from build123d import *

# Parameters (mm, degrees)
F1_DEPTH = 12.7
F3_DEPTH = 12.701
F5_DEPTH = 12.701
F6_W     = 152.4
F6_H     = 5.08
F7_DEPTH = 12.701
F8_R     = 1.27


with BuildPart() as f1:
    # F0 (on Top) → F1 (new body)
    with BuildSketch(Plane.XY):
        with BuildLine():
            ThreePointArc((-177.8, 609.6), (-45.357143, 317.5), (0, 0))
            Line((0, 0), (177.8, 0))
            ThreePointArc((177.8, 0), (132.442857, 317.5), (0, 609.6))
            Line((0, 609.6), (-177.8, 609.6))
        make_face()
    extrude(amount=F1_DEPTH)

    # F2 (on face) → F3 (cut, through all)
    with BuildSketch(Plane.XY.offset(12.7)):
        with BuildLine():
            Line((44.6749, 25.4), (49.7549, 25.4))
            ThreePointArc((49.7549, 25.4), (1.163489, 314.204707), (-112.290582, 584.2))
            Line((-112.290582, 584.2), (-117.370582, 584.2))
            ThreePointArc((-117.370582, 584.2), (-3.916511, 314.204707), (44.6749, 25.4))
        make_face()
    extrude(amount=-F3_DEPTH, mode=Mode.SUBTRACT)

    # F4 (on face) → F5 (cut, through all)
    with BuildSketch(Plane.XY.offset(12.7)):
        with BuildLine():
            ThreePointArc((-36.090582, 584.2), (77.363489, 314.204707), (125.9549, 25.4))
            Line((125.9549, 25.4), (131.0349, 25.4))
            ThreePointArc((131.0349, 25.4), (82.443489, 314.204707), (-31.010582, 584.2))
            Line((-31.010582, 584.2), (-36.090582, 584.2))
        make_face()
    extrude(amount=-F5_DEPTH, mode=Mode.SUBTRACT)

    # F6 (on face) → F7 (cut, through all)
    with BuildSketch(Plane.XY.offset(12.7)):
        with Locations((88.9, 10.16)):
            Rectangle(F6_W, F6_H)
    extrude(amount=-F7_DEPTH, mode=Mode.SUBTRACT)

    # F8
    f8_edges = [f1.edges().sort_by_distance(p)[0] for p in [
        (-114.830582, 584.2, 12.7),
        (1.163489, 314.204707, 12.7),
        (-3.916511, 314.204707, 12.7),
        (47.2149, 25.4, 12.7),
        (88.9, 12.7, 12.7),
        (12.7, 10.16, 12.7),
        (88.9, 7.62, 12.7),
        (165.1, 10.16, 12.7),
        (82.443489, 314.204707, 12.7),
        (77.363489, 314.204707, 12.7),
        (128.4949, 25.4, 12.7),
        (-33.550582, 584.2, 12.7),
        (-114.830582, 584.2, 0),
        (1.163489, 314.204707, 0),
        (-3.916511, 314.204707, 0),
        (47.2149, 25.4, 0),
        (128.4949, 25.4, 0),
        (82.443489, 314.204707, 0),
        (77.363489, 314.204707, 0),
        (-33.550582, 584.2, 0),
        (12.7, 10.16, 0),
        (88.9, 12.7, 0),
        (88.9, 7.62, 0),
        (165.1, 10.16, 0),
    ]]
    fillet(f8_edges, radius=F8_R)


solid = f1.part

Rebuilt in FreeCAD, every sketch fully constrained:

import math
import FreeCAD as App
import Part
import Sketcher
from FreeCAD import Vector
Q = App.Units.Quantity


def edges_at(feature, points):
    """Names of the edges that pass closest to the given points."""
    edges = feature.Shape.Edges
    near = lambda p: min(range(len(edges)), key=lambda i: edges[i].distToShape(Part.Vertex(*p))[0])
    return sorted({f"Edge{near(p) + 1}" for p in points})

doc = App.newDocument("Part")
body = doc.addObject("PartDesign::Body", "Body")

sketch1 = doc.addObject("Sketcher::SketchObject", "Sketch")
body.addObject(sketch1)
sketch1.AttachmentSupport = (doc.XY_Plane, [""])
sketch1.MapMode = "FlatFace"
sketch1.addGeometry(Part.ArcOfCircle(Part.Circle(Vector(-1134, 0, 0), Vector(0, 0, 1), 1134), math.radians(0), math.radians(33)), False)
sketch1.addGeometry(Part.LineSegment(Vector(0, 0, 0), Vector(178, 0, 0)), False)
sketch1.addGeometry(Part.ArcOfCircle(Part.Circle(Vector(-956, 0, 0), Vector(0, 0, 1), 1134), math.radians(0), math.radians(33)), False)
sketch1.addGeometry(Part.LineSegment(Vector(0, 610, 0), Vector(-178, 610, 0)), False)
sketch1.addConstraint(Sketcher.Constraint("Coincident", 0, 1, 1, 1))
sketch1.addConstraint(Sketcher.Constraint("Coincident", 1, 2, 2, 1))
sketch1.addConstraint(Sketcher.Constraint("Coincident", 2, 2, 3, 1))
sketch1.addConstraint(Sketcher.Constraint("Coincident", 3, 2, 0, 2))
sketch1.addConstraint(Sketcher.Constraint("Horizontal", 1))
sketch1.addConstraint(Sketcher.Constraint("Horizontal", 3))
sketch1.addConstraint(Sketcher.Constraint("Equal", 0, 2))
sketch1.addConstraint(Sketcher.Constraint("PointOnObject", 0, 3, -1))
sketch1.addConstraint(Sketcher.Constraint("PointOnObject", 2, 3, -1))
sketch1.addConstraint(Sketcher.Constraint("PointOnObject", 1, 2, -1))
sketch1.addConstraint(Sketcher.Constraint("DistanceX", 1, 1, 1, 2, Q("7 in")))
sketch1.addConstraint(Sketcher.Constraint("DistanceX", -1, 1, 1, 2, Q("7 in")))
sketch1.addConstraint(Sketcher.Constraint("DistanceX", 3, 2, -1, 1, Q("7 in")))
sketch1.addConstraint(Sketcher.Constraint("DistanceY", -1, 1, 3, 2, Q("24 in")))
pad1 = doc.addObject("PartDesign::Pad", "Pad")
body.addObject(pad1)
pad1.Profile = sketch1
pad1.Length = Q("0.5 in")

sketch2 = doc.addObject("Sketcher::SketchObject", "Sketch001")
body.addObject(sketch2)
sketch2.AttachmentSupport = (doc.XY_Plane, [""])
sketch2.MapMode = "FlatFace"
sketch2.AttachmentOffset = App.Placement(Vector(0, 0, 0.5 * 25.4), App.Rotation())
sketch2.addGeometry(Part.LineSegment(Vector(45, 25, 0), Vector(50, 25, 0)), False)
sketch2.addGeometry(Part.ArcOfCircle(Part.Circle(Vector(-1219, -40, 0), Vector(0, 0, 1), 1270), math.radians(3), math.radians(29)), False)
sketch2.addGeometry(Part.LineSegment(Vector(-112, 584, 0), Vector(-117, 584, 0)), False)
sketch2.addGeometry(Part.ArcOfCircle(Part.Circle(Vector(-1224, -40, 0), Vector(0, 0, 1), 1270), math.radians(3), math.radians(29)), False)
sketch2.addConstraint(Sketcher.Constraint("Coincident", 0, 2, 1, 1))
sketch2.addConstraint(Sketcher.Constraint("Coincident", 1, 2, 2, 1))
sketch2.addConstraint(Sketcher.Constraint("Coincident", 2, 2, 3, 2))
sketch2.addConstraint(Sketcher.Constraint("Coincident", 3, 1, 0, 1))
sketch2.addConstraint(Sketcher.Constraint("Horizontal", 0))
sketch2.addConstraint(Sketcher.Constraint("Horizontal", 2))
sketch2.addConstraint(Sketcher.Constraint("Equal", 1, 3))
sketch2.addConstraint(Sketcher.Constraint("Horizontal", 1, 3, 3, 3))
sketch2.addConstraint(Sketcher.Constraint("DistanceX", 0, 1, 0, 2, Q("0.2 in")))
sketch2.addConstraint(Sketcher.Constraint("DistanceY", -1, 1, 0, 2, Q("1 in")))
sketch2.addConstraint(Sketcher.Constraint("DistanceY", -1, 1, 2, 2, Q("23 in")))
sketch2.addConstraint(Sketcher.Constraint("Radius", 1, 1269.999983))
sketch2.addConstraint(Sketcher.Constraint("DistanceX", -1, 1, 0, 2, 49.7549))
sketch2.addConstraint(Sketcher.Constraint("DistanceX", 2, 2, -1, 1, 117.370582))
pocket1 = doc.addObject("PartDesign::Pocket", "Pocket")
body.addObject(pocket1)
pocket1.Profile = sketch2
pocket1.Type = "ThroughAll"

sketch3 = doc.addObject("Sketcher::SketchObject", "Sketch002")
body.addObject(sketch3)
sketch3.AttachmentSupport = (doc.XY_Plane, [""])
sketch3.MapMode = "FlatFace"
sketch3.AttachmentOffset = App.Placement(Vector(0, 0, 0.5 * 25.4), App.Rotation())
sketch3.addGeometry(Part.ArcOfCircle(Part.Circle(Vector(-1142, -40, 0), Vector(0, 0, 1), 1270), math.radians(3), math.radians(29)), False)
sketch3.addGeometry(Part.LineSegment(Vector(126, 25, 0), Vector(131, 25, 0)), False)
sketch3.addGeometry(Part.ArcOfCircle(Part.Circle(Vector(-1137, -40, 0), Vector(0, 0, 1), 1270), math.radians(3), math.radians(29)), False)
sketch3.addGeometry(Part.LineSegment(Vector(-31, 584, 0), Vector(-36, 584, 0)), False)
sketch3.addConstraint(Sketcher.Constraint("Coincident", 0, 1, 1, 1))
sketch3.addConstraint(Sketcher.Constraint("Coincident", 1, 2, 2, 1))
sketch3.addConstraint(Sketcher.Constraint("Coincident", 2, 2, 3, 1))
sketch3.addConstraint(Sketcher.Constraint("Coincident", 3, 2, 0, 2))
sketch3.addConstraint(Sketcher.Constraint("Horizontal", 1))
sketch3.addConstraint(Sketcher.Constraint("Horizontal", 3))
sketch3.addConstraint(Sketcher.Constraint("Equal", 0, 2))
sketch3.addConstraint(Sketcher.Constraint("Horizontal", 0, 3, 2, 3))
sketch3.addConstraint(Sketcher.Constraint("DistanceX", 1, 1, 1, 2, Q("0.2 in")))
sketch3.addConstraint(Sketcher.Constraint("DistanceY", -1, 1, 1, 2, Q("1 in")))
sketch3.addConstraint(Sketcher.Constraint("DistanceY", -1, 1, 3, 2, Q("23 in")))
sketch3.addConstraint(Sketcher.Constraint("Radius", 0, 1269.999983))
sketch3.addConstraint(Sketcher.Constraint("DistanceX", -1, 1, 0, 1, 125.9549))
sketch3.addConstraint(Sketcher.Constraint("DistanceX", 3, 2, -1, 1, 36.090582))
pocket2 = doc.addObject("PartDesign::Pocket", "Pocket001")
body.addObject(pocket2)
pocket2.Profile = sketch3
pocket2.Type = "ThroughAll"

sketch4 = doc.addObject("Sketcher::SketchObject", "Sketch003")
body.addObject(sketch4)
sketch4.AttachmentSupport = (doc.XY_Plane, [""])
sketch4.MapMode = "FlatFace"
sketch4.AttachmentOffset = App.Placement(Vector(0, 0, 0.5 * 25.4), App.Rotation())
sketch4.addGeometry(Part.LineSegment(Vector(13, 13, 0), Vector(13, 8, 0)), False)
sketch4.addGeometry(Part.LineSegment(Vector(13, 8, 0), Vector(165, 8, 0)), False)
sketch4.addGeometry(Part.LineSegment(Vector(165, 8, 0), Vector(165, 13, 0)), False)
sketch4.addGeometry(Part.LineSegment(Vector(165, 13, 0), Vector(13, 13, 0)), False)
sketch4.addConstraint(Sketcher.Constraint("Coincident", 0, 2, 1, 1))
sketch4.addConstraint(Sketcher.Constraint("Coincident", 1, 2, 2, 1))
sketch4.addConstraint(Sketcher.Constraint("Coincident", 2, 2, 3, 1))
sketch4.addConstraint(Sketcher.Constraint("Coincident", 3, 2, 0, 1))
sketch4.addConstraint(Sketcher.Constraint("Vertical", 0))
sketch4.addConstraint(Sketcher.Constraint("Horizontal", 1))
sketch4.addConstraint(Sketcher.Constraint("Vertical", 2))
sketch4.addConstraint(Sketcher.Constraint("Horizontal", 3))
sketch4.addConstraint(Sketcher.Constraint("DistanceX", 1, 1, 1, 2, Q("6 in")))
sketch4.addConstraint(Sketcher.Constraint("DistanceY", 0, 2, 0, 1, Q("0.2 in")))
sketch4.addConstraint(Sketcher.Constraint("DistanceX", -1, 1, 0, 2, Q("0.5 in")))
sketch4.addConstraint(Sketcher.Constraint("DistanceY", -1, 1, 0, 2, Q("0.3 in")))
pocket3 = doc.addObject("PartDesign::Pocket", "Pocket002")
body.addObject(pocket3)
pocket3.Profile = sketch4
pocket3.Type = "ThroughAll"
doc.recompute()

fillet = doc.addObject("PartDesign::Fillet", "Fillet")
body.addObject(fillet)
fillet.Base = (pocket3, edges_at(pocket3, [
    (-114.831, 584.2, 12.7),
    (1.163, 314.205, 12.7),
    (-3.917, 314.205, 12.7),
    (47.215, 25.4, 12.7),
    (88.9, 12.7, 12.7),
    (12.7, 10.16, 12.7),
    (88.9, 7.62, 12.7),
    (165.1, 10.16, 12.7),
    (82.443, 314.205, 12.7),
    (77.363, 314.205, 12.7),
    (128.495, 25.4, 12.7),
    (-33.551, 584.2, 12.7),
    (-114.831, 584.2, 0),
    (1.163, 314.205, 0),
    (-3.917, 314.205, 0),
    (47.215, 25.4, 0),
    (128.495, 25.4, 0),
    (82.443, 314.205, 0),
    (77.363, 314.205, 0),
    (-33.551, 584.2, 0),
    (12.7, 10.16, 0),
    (88.9, 12.7, 0),
    (88.9, 7.62, 0),
    (165.1, 10.16, 0),
]))
fillet.Radius = Q("0.05 in")

doc.recompute()
